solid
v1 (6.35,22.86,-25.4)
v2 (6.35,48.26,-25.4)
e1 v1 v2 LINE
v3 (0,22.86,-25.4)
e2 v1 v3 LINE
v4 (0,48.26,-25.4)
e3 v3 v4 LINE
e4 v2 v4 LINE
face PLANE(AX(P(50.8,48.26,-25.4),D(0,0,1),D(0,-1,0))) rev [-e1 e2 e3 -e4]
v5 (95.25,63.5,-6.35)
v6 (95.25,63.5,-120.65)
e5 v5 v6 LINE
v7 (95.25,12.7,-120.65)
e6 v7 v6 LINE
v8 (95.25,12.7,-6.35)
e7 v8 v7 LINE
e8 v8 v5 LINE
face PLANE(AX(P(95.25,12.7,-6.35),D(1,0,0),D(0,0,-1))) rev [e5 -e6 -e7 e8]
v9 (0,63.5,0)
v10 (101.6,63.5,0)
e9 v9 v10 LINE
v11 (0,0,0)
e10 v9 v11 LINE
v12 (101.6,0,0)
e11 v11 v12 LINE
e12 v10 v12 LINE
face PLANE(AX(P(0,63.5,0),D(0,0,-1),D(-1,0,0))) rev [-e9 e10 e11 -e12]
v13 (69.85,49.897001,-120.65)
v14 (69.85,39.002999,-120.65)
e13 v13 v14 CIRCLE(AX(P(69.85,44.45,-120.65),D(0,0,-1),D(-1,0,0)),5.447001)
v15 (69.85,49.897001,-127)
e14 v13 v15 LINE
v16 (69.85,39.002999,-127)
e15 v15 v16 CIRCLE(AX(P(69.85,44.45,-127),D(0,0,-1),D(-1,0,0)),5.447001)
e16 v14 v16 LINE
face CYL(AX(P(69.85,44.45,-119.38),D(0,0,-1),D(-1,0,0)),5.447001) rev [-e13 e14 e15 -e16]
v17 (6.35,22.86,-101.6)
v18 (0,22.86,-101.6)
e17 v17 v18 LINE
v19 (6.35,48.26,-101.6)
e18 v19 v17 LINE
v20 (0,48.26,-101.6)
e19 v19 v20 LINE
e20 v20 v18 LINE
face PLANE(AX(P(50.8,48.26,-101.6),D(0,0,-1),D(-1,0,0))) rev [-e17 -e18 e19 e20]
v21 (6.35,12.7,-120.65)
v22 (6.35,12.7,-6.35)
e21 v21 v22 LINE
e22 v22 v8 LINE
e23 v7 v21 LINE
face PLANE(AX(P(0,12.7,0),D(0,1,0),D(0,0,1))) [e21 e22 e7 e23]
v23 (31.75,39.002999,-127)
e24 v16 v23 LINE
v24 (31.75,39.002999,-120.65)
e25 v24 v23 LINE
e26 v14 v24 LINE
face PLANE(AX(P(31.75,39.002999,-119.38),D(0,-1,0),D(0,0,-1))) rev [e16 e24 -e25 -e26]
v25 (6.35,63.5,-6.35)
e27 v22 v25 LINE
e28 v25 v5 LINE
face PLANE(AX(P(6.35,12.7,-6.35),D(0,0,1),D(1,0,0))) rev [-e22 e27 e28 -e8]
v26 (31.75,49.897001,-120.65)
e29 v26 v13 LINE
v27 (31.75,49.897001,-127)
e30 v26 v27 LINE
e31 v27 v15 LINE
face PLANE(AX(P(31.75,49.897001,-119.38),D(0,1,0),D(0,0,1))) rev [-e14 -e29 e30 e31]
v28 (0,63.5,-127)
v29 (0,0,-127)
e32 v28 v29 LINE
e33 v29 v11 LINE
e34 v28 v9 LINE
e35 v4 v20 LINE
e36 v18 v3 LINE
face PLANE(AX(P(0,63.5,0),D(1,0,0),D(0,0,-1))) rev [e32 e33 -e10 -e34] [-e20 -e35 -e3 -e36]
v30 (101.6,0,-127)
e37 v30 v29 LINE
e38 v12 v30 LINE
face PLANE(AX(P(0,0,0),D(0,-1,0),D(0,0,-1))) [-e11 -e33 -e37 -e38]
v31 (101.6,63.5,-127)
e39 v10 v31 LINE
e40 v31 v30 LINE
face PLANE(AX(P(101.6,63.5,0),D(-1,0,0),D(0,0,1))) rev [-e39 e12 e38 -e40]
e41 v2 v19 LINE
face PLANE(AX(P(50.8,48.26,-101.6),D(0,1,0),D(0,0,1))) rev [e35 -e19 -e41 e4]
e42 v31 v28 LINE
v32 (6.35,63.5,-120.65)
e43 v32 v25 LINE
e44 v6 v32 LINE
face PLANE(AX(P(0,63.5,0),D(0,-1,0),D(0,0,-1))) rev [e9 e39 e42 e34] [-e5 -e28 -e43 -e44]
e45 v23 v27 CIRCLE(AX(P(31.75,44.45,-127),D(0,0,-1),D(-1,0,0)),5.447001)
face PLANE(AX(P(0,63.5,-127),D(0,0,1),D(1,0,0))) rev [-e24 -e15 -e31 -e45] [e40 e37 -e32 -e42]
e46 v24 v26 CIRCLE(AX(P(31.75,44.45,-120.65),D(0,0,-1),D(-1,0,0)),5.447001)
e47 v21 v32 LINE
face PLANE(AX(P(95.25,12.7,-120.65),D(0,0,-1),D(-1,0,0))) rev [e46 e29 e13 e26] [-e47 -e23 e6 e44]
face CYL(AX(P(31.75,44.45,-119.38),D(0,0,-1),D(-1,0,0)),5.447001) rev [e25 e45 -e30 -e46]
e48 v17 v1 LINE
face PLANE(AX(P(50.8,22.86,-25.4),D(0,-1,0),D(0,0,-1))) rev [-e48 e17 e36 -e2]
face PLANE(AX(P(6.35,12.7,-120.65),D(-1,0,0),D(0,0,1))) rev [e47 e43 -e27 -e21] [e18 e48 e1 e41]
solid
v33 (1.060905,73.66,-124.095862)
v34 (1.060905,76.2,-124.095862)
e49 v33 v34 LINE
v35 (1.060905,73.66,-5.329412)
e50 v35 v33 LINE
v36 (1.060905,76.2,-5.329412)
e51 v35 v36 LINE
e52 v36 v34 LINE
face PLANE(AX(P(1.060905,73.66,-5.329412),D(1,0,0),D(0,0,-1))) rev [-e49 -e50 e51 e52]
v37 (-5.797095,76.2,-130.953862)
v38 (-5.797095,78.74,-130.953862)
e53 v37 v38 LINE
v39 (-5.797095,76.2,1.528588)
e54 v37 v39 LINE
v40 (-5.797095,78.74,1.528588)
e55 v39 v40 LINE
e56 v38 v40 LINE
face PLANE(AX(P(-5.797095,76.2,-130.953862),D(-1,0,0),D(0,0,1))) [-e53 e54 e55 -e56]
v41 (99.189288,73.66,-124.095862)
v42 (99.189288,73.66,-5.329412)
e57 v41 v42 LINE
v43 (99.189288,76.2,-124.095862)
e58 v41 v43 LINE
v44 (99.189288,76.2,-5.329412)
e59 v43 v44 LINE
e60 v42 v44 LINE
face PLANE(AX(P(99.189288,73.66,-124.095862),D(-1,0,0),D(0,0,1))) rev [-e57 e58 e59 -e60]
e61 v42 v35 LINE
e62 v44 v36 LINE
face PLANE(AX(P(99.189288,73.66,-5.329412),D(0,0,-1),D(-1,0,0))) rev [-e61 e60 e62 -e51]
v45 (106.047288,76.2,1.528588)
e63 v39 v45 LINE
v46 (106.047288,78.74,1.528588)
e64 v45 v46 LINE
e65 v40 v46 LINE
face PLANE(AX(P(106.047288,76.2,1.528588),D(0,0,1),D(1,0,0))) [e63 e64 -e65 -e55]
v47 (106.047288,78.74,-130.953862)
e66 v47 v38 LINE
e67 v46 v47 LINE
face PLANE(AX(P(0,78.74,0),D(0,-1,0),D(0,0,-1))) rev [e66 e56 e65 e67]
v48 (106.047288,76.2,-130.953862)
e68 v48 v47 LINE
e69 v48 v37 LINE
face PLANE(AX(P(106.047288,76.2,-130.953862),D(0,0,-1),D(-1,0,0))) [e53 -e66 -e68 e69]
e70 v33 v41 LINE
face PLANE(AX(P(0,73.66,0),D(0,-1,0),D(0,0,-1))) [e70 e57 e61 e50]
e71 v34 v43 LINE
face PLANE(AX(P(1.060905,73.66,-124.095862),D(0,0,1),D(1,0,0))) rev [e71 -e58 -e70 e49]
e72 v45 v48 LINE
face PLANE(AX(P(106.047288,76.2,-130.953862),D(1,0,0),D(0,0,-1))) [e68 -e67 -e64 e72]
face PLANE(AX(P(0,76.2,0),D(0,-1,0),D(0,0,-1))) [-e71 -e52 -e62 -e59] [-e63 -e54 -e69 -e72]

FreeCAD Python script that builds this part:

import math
import FreeCAD as App
import Part
import Sketcher
from FreeCAD import Vector
Q = App.Units.Quantity

doc = App.newDocument("Part")
body = doc.addObject("PartDesign::Body", "Body")

sketch1 = body.newObject("Sketcher::SketchObject", "Sketch")
sketch1.AttachmentSupport = (doc.getObject("XZ_Plane"), [""])
sketch1.MapMode = "FlatFace"
sketch1.addGeometry([
    Part.LineSegment(Vector(0, -127, 0), Vector(0, 0, 0)),
    Part.LineSegment(Vector(0, 0, 0), Vector(102, 0, 0)),
    Part.LineSegment(Vector(102, 0, 0), Vector(102, -127, 0)),
    Part.LineSegment(Vector(102, -127, 0), Vector(0, -127, 0)),
], False)
sketch1.addConstraint([
    Sketcher.Constraint("Coincident", 0, 2, 1, 1),
    Sketcher.Constraint("Coincident", 1, 2, 2, 1),
    Sketcher.Constraint("Coincident", 2, 2, 3, 1),
    Sketcher.Constraint("Coincident", 3, 2, 0, 1),
    Sketcher.Constraint("Vertical", 0),
    Sketcher.Constraint("Horizontal", 1),
    Sketcher.Constraint("Vertical", 2),
    Sketcher.Constraint("Horizontal", 3),
    Sketcher.Constraint("Coincident", 0, 2, -1, 1),
    Sketcher.Constraint("DistanceX", 1, 1, 1, 2, Q("4 in")),
    Sketcher.Constraint("DistanceY", 0, 1, 0, 2, Q("5 in")),
])
pad1 = body.newObject("PartDesign::Pad", "Pad")
pad1.Profile = sketch1
pad1.Length = Q("2.5 in")
pad1.Reversed = True

sketch2 = body.newObject("Sketcher::SketchObject", "Sketch001")
sketch2.AttachmentSupport = (doc.getObject("XZ_Plane"), [""])
sketch2.MapMode = "FlatFace"
sketch2.AttachmentOffset = App.Placement(Vector(0, 0, -2.5 * 25.4), App.Rotation())
sketch2.addGeometry([
    Part.LineSegment(Vector(6, -121, 0), Vector(6, -6, 0)),
    Part.LineSegment(Vector(6, -6, 0), Vector(95, -6, 0)),
    Part.LineSegment(Vector(95, -6, 0), Vector(95, -121, 0)),
    Part.LineSegment(Vector(95, -121, 0), Vector(6, -121, 0)),
], False)
sketch2.addConstraint([
    Sketcher.Constraint("Coincident", 0, 2, 1, 1),
    Sketcher.Constraint("Coincident", 1, 2, 2, 1),
    Sketcher.Constraint("Coincident", 2, 2, 3, 1),
    Sketcher.Constraint("Coincident", 3, 2, 0, 1),
    Sketcher.Constraint("Vertical", 0),
    Sketcher.Constraint("Horizontal", 1),
    Sketcher.Constraint("Vertical", 2),
    Sketcher.Constraint("Horizontal", 3),
    Sketcher.Constraint("DistanceX", 1, 1, 1, 2, Q("3.5 in")),
    Sketcher.Constraint("DistanceY", 0, 1, 0, 2, Q("4.5 in")),
    Sketcher.Constraint("DistanceX", -1, 1, 0, 2, Q("0.25 in")),
    Sketcher.Constraint("DistanceY", 0, 2, -1, 1, Q("0.25 in")),
])
pocket1 = body.newObject("PartDesign::Pocket", "Pocket")
pocket1.Profile = sketch2
pocket1.Length = Q("2 in")
pocket1.Reversed = True

sketch3 = body.newObject("Sketcher::SketchObject", "Sketch002")
sketch3.AttachmentSupport = (doc.getObject("YZ_Plane"), [""])
sketch3.MapMode = "FlatFace"
sketch3.addGeometry([
    Part.LineSegment(Vector(48, -102, 0), Vector(23, -102, 0)),
    Part.LineSegment(Vector(23, -102, 0), Vector(23, -25, 0)),
    Part.LineSegment(Vector(23, -25, 0), Vector(48, -25, 0)),
    Part.LineSegment(Vector(48, -25, 0), Vector(48, -102, 0)),
], False)
sketch3.addConstraint([
    Sketcher.Constraint("Coincident", 0, 2, 1, 1),
    Sketcher.Constraint("Coincident", 1, 2, 2, 1),
    Sketcher.Constraint("Coincident", 2, 2, 3, 1),
    Sketcher.Constraint("Coincident", 3, 2, 0, 1),
    Sketcher.Constraint("Horizontal", 0),
    Sketcher.Constraint("Vertical", 1),
    Sketcher.Constraint("Horizontal", 2),
    Sketcher.Constraint("Vertical", 3),
    Sketcher.Constraint("DistanceX", 0, 2, 0, 1, Q("1 in")),
    Sketcher.Constraint("DistanceY", 1, 1, 1, 2, Q("3 in")),
    Sketcher.Constraint("DistanceY", 0, 2, -1, 1, Q("4 in")),
    Sketcher.Constraint("DistanceX", -1, 1, 0, 2, Q("0.9 in")),
])
pocket2 = body.newObject("PartDesign::Pocket", "Pocket001")
pocket2.Profile = sketch3
pocket2.Length = Q("2 in")
pocket2.Reversed = True

sketch4 = body.newObject("Sketcher::SketchObject", "Sketch003")
sketch4.AttachmentSupport = (doc.getObject("XY_Plane"), [""])
sketch4.MapMode = "FlatFace"
sketch4.AttachmentOffset = App.Placement(Vector(0, 0, -5 * 25.4), App.Rotation())
sketch4.addGeometry([
    Part.LineSegment(Vector(70, 39, 0), Vector(32, 39, 0)),
    Part.ArcOfCircle(Part.Circle(Vector(32, 44, 0), Vector(0, 0, 1), 5), math.radians(90), math.radians(270)),
    Part.LineSegment(Vector(32, 50, 0), Vector(70, 50, 0)),
    Part.ArcOfCircle(Part.Circle(Vector(70, 44, 0), Vector(0, 0, 1), 5), math.radians(-90), math.radians(90)),
], False)
sketch4.addConstraint([
    Sketcher.Constraint("Tangent", 0, 2, 1, 2),
    Sketcher.Constraint("Tangent", 1, 1, 2, 1),
    Sketcher.Constraint("Tangent", 2, 2, 3, 2),
    Sketcher.Constraint("Tangent", 3, 1, 0, 1),
    Sketcher.Constraint("Horizontal", 0),
    Sketcher.Constraint("Horizontal", 2),
    Sketcher.Constraint("DistanceX", 0, 2, 0, 1, Q("1.5 in")),
    Sketcher.Constraint("DistanceX", -1, 1, 1, 3, Q("1.25 in")),
    Sketcher.Constraint("DistanceY", -1, 1, 1, 3, Q("1.75 in")),
    Sketcher.Constraint("Radius", 1, Q("5.447001 mm")),
])
pocket3 = body.newObject("PartDesign::Pocket", "Pocket002")
pocket3.Profile = sketch4
pocket3.Length = Q("0.3 in")
pocket3.Reversed = True
body2 = doc.addObject("PartDesign::Body", "Body001")

sketch5 = body2.newObject("Sketcher::SketchObject", "Sketch004")
sketch5.AttachmentSupport = (doc.getObject("XZ_Plane001"), [""])
sketch5.MapMode = "FlatFace"
sketch5.AttachmentOffset = App.Placement(Vector(0, 0, -3.1 * 25.4), App.Rotation())
sketch5.addGeometry([
    Part.LineSegment(Vector(-6, -131, 0), Vector(-6, 2, 0)),
    Part.LineSegment(Vector(-6, 2, 0), Vector(106, 2, 0)),
    Part.LineSegment(Vector(106, 2, 0), Vector(106, -131, 0)),
    Part.LineSegment(Vector(106, -131, 0), Vector(-6, -131, 0)),
], False)
sketch5.addConstraint([
    Sketcher.Constraint("Coincident", 0, 2, 1, 1),
    Sketcher.Constraint("Coincident", 1, 2, 2, 1),
    Sketcher.Constraint("Coincident", 2, 2, 3, 1),
    Sketcher.Constraint("Coincident", 3, 2, 0, 1),
    Sketcher.Constraint("Vertical", 0),
    Sketcher.Constraint("Horizontal", 1),
    Sketcher.Constraint("Vertical", 2),
    Sketcher.Constraint("Horizontal", 3),
    Sketcher.Constraint("DistanceY", 0, 1, 0, 2, Q("132.48245 mm")),
    Sketcher.Constraint("DistanceX", 1, 1, 1, 2, Q("111.844383 mm")),
    Sketcher.Constraint("DistanceY", -1, 1, 0, 2, Q("1.528588 mm")),
    Sketcher.Constraint("DistanceX", -1, 1, 1, 2, Q("106.047288 mm")),
])
pad2 = body2.newObject("PartDesign::Pad", "Pad001")
pad2.Profile = sketch5
pad2.Length = Q("0.1 in")

sketch6 = body2.newObject("Sketcher::SketchObject", "Sketch005")
sketch6.AttachmentSupport = (doc.getObject("XZ_Plane001"), [""])
sketch6.MapMode = "FlatFace"
sketch6.AttachmentOffset = App.Placement(Vector(0, 0, -3 * 25.4), App.Rotation())
sketch6.addGeometry([
    Part.LineSegment(Vector(1, -5, 0), Vector(1, -124, 0)),
    Part.LineSegment(Vector(1, -124, 0), Vector(99, -124, 0)),
    Part.LineSegment(Vector(99, -124, 0), Vector(99, -5, 0)),
    Part.LineSegment(Vector(99, -5, 0), Vector(1, -5, 0)),
], False)
sketch6.addConstraint([
    Sketcher.Constraint("Coincident", 0, 2, 1, 1),
    Sketcher.Constraint("Coincident", 1, 2, 2, 1),
    Sketcher.Constraint("Coincident", 2, 2, 3, 1),
    Sketcher.Constraint("Coincident", 3, 2, 0, 1),
    Sketcher.Constraint("Vertical", 0),
    Sketcher.Constraint("Horizontal", 1),
    Sketcher.Constraint("Vertical", 2),
    Sketcher.Constraint("Horizontal", 3),
    Sketcher.Constraint("DistanceY", 0, 2, 0, 1, Q("118.76645 mm")),
    Sketcher.Constraint("DistanceX", 1, 1, 1, 2, Q("98.128383 mm")),
    Sketcher.Constraint("DistanceY", 0, 2, -1, 1, Q("124.095862 mm")),
    Sketcher.Constraint("DistanceX", -1, 1, 1, 2, Q("99.189288 mm")),
])
pad3 = body2.newObject("PartDesign::Pad", "Pad002")
pad3.Profile = sketch6
pad3.Length = Q("0.1 in")

doc.recompute()
